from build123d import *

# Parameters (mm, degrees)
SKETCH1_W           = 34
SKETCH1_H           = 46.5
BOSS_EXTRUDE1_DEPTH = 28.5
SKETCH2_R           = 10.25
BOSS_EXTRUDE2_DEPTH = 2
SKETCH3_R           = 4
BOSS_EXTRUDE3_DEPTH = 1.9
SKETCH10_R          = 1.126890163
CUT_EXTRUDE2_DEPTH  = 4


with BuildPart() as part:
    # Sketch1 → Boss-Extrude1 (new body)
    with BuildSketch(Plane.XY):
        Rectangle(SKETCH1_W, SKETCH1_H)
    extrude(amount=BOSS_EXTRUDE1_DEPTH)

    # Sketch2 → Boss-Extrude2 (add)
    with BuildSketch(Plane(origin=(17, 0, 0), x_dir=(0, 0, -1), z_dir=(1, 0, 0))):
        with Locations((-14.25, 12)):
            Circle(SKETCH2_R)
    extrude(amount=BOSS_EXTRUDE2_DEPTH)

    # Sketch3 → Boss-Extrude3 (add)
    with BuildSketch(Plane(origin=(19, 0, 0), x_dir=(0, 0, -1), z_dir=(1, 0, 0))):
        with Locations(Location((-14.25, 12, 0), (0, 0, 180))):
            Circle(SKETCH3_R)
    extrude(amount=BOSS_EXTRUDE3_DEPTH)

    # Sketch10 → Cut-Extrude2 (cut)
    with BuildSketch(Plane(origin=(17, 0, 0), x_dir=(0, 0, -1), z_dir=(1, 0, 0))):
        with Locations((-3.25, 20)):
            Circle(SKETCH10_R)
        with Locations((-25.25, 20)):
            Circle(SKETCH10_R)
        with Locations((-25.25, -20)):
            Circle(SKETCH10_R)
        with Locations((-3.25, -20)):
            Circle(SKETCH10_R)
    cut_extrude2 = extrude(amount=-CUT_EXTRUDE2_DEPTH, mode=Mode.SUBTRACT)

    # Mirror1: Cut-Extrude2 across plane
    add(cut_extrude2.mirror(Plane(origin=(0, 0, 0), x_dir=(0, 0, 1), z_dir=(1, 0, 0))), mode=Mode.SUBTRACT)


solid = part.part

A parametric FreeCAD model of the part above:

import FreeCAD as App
import Part
import Sketcher
Q = App.Units.Quantity

doc = App.newDocument("Part")
body = doc.addObject("PartDesign::Body", "Body")

# Sketch on XY plane
sketch1 = doc.addObject("Sketcher::SketchObject", "Sketch")
body.addObject(sketch1)
sketch1.AttachmentSupport = (doc.XY_Plane, [""])
sketch1.MapMode = "FlatFace"
sketch1.addGeometry(Part.LineSegment(App.Vector(-17, 23.25, 0), App.Vector(-17, -23.25, 0)), False)
sketch1.addGeometry(Part.LineSegment(App.Vector(-17, -23.25, 0), App.Vector(17, -23.25, 0)), False)
sketch1.addGeometry(Part.LineSegment(App.Vector(17, -23.25, 0), App.Vector(17, 23.25, 0)), False)
sketch1.addGeometry(Part.LineSegment(App.Vector(17, 23.25, 0), App.Vector(-17, 23.25, 0)), False)
sketch1.addConstraint(Sketcher.Constraint("Coincident", 0, 2, 1, 1))
sketch1.addConstraint(Sketcher.Constraint("Coincident", 1, 2, 2, 1))
sketch1.addConstraint(Sketcher.Constraint("Coincident", 2, 2, 3, 1))
sketch1.addConstraint(Sketcher.Constraint("Coincident", 3, 2, 0, 1))
sketch1.addConstraint(Sketcher.Constraint("Vertical", 0))
sketch1.addConstraint(Sketcher.Constraint("Horizontal", 1))
sketch1.addConstraint(Sketcher.Constraint("Vertical", 2))
sketch1.addConstraint(Sketcher.Constraint("Horizontal", 3))
sketch1.addConstraint(Sketcher.Constraint("Symmetric", 0, 2, 2, 2, -1, 1))
sketch1.addConstraint(Sketcher.Constraint("DistanceX", 1, 1, 1, 2, Q("34 mm")))
sketch1.addConstraint(Sketcher.Constraint("DistanceY", 0, 2, 0, 1, Q("46.5 mm")))
pad1 = doc.addObject("PartDesign::Pad", "Pad")
body.addObject(pad1)
pad1.Profile = sketch1
pad1.Length = 28.5

# Sketch on YZ plane
sketch2 = doc.addObject("Sketcher::SketchObject", "Sketch001")
body.addObject(sketch2)
sketch2.AttachmentSupport = (doc.YZ_Plane, [""])
sketch2.MapMode = "FlatFace"
sketch2.AttachmentOffset = App.Placement(App.Vector(0, 0, 17), App.Rotation())
sketch2.addGeometry(Part.Circle(App.Vector(12, 14.25, 0), App.Vector(0, 0, 1), 10.25), False)
sketch2.addConstraint(Sketcher.Constraint("Diameter", 0, Q("20.5 mm")))
sketch2.addConstraint(Sketcher.Constraint("DistanceX", -1, 1, 0, 3, Q("12 mm")))
sketch2.addConstraint(Sketcher.Constraint("DistanceY", -1, 1, 0, 3, Q("14.25 mm")))
pad2 = doc.addObject("PartDesign::Pad", "Pad001")
body.addObject(pad2)
pad2.Profile = sketch2
pad2.Length = 2

# Sketch on YZ plane
sketch3 = doc.addObject("Sketcher::SketchObject", "Sketch002")
body.addObject(sketch3)
sketch3.AttachmentSupport = (doc.YZ_Plane, [""])
sketch3.MapMode = "FlatFace"
sketch3.AttachmentOffset = App.Placement(App.Vector(0, 0, 19), App.Rotation())
sketch3.addGeometry(Part.Circle(App.Vector(12, 14.25, 0), App.Vector(0, 0, 1), 4), False)
sketch3.addConstraint(Sketcher.Constraint("Diameter", 0, Q("8 mm")))
sketch3.addConstraint(Sketcher.Constraint("DistanceX", -1, 1, 0, 3, Q("12 mm")))
sketch3.addConstraint(Sketcher.Constraint("DistanceY", -1, 1, 0, 3, Q("14.25 mm")))
pad3 = doc.addObject("PartDesign::Pad", "Pad002")
body.addObject(pad3)
pad3.Profile = sketch3
pad3.Length = 1.9

# Sketch on YZ plane
sketch4 = doc.addObject("Sketcher::SketchObject", "Sketch003")
body.addObject(sketch4)
sketch4.AttachmentSupport = (doc.YZ_Plane, [""])
sketch4.MapMode = "FlatFace"
sketch4.AttachmentOffset = App.Placement(App.Vector(0, 0, 17), App.Rotation())
sketch4.addGeometry(Part.Circle(App.Vector(20, 3.25, 0), App.Vector(0, 0, 1), 1.12689), False)
sketch4.addGeometry(Part.Circle(App.Vector(20, 25.25, 0), App.Vector(0, 0, 1), 1.12689), False)
sketch4.addGeometry(Part.Circle(App.Vector(-20, 25.25, 0), App.Vector(0, 0, 1), 1.12689), False)
sketch4.addGeometry(Part.Circle(App.Vector(-20, 3.25, 0), App.Vector(0, 0, 1), 1.12689), False)
sketch4.addConstraint(Sketcher.Constraint("Equal", 0, 1))
sketch4.addConstraint(Sketcher.Constraint("Equal", 1, 2))
sketch4.addConstraint(Sketcher.Constraint("Equal", 2, 3))
sketch4.addConstraint(Sketcher.Constraint("Symmetric", 1, 3, 2, 3, -2))
sketch4.addConstraint(Sketcher.Constraint("Symmetric", 0, 3, 3, 3, -2))
sketch4.addConstraint(Sketcher.Constraint("Vertical", 0, 3, 1, 3))
sketch4.addConstraint(Sketcher.Constraint("DistanceX", -1, 1, 0, 3, Q("20 mm")))
sketch4.addConstraint(Sketcher.Constraint("DistanceY", 0, 3, 1, 3, Q("22 mm")))
sketch4.addConstraint(Sketcher.Constraint("Diameter", 0, Q("2.25378 mm")))
sketch4.addConstraint(Sketcher.Constraint("DistanceY", -1, 1, 0, 3, Q("3.25 mm")))
pocket1 = doc.addObject("PartDesign::Pocket", "Pocket")
body.addObject(pocket1)
pocket1.Profile = sketch4
pocket1.Length = 4
doc.recompute()

mirrored = doc.addObject("PartDesign::Mirrored", "Mirrored")
body.addObject(mirrored)
mirrored.Originals = [pocket1]
mirrored.MirrorPlane = (doc.YZ_Plane, [""])
body.Tip = mirrored

doc.recompute()
